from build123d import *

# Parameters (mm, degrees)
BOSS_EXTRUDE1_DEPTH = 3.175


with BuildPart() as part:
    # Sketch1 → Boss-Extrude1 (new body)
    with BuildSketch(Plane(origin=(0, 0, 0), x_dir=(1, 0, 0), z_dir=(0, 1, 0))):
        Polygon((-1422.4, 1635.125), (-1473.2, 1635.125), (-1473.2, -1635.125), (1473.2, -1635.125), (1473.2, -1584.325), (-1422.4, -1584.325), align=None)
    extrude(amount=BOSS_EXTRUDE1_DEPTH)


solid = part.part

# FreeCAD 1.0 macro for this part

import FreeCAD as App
import Part
import Sketcher
Q = App.Units.Quantity

doc = App.newDocument("Part")
params = doc.addObject("Spreadsheet::Sheet", "Params")
for row, (alias, value) in enumerate([
    ("sketch1_width", "2 in"),
    ("sketch1_width2", "116 in"),
    ("sketch1_height", "128.75 in"),
    ("pad1_length", "0.125 in"),
], start=1):
    params.set(f"A{row}", alias)
    params.set(f"B{row}", "=" + value)
    params.setAlias(f"B{row}", alias)

body = doc.addObject("PartDesign::Body", "Body")

# Sketch on XZ plane
sketch1 = body.newObject("Sketcher::SketchObject", "Sketch")
sketch1.AttachmentSupport = (doc.getObject("XZ_Plane"), [""])
sketch1.MapMode = "FlatFace"
sketch1.addGeometry([
    Part.LineSegment(App.Vector(-1422, -1635, 0), App.Vector(-1473, -1635, 0)),  # 0
    Part.LineSegment(App.Vector(-1473, -1635, 0), App.Vector(-1473, 1635, 0)),  # 1
    Part.LineSegment(App.Vector(-1473, 1635, 0), App.Vector(1473, 1635, 0)),  # 2
    Part.LineSegment(App.Vector(1473, 1635, 0), App.Vector(1473, 1584, 0)),  # 3
    Part.LineSegment(App.Vector(1473, 1584, 0), App.Vector(-1422, 1584, 0)),  # 4
    Part.LineSegment(App.Vector(-1422, 1584, 0), App.Vector(-1422, -1635, 0)),  # 5
], False)
sketch1.addConstraint([
    Sketcher.Constraint("Coincident", 0, 2, 1, 1),
    Sketcher.Constraint("Coincident", 1, 2, 2, 1),
    Sketcher.Constraint("Coincident", 2, 2, 3, 1),
    Sketcher.Constraint("Coincident", 3, 2, 4, 1),
    Sketcher.Constraint("Coincident", 4, 2, 5, 1),
    Sketcher.Constraint("Coincident", 5, 2, 0, 1),
    Sketcher.Constraint("Horizontal", 0),
    Sketcher.Constraint("Vertical", 1),
    Sketcher.Constraint("Horizontal", 2),
    Sketcher.Constraint("Vertical", 3),
    Sketcher.Constraint("Horizontal", 4),
    Sketcher.Constraint("Vertical", 5),
    Sketcher.Constraint("Symmetric", 0, 2, 2, 2, -1, 1),
    Sketcher.Constraint("Equal", 0, 3),
    Sketcher.Constraint("DistanceX", 0, 2, 0, 1, Q("2 in")),
    Sketcher.Constraint("DistanceX", 2, 1, 2, 2, Q("116 in")),
    Sketcher.Constraint("DistanceY", 1, 1, 1, 2, Q("128.75 in")),
])
sketch1.setExpression("Constraints[14]", "Params.sketch1_width")
sketch1.setExpression("Constraints[15]", "Params.sketch1_width2")
sketch1.setExpression("Constraints[16]", "Params.sketch1_height")
pad1 = body.newObject("PartDesign::Pad", "Pad")
pad1.Profile = sketch1
pad1.setExpression("Length", "Params.pad1_length")
pad1.Reversed = True

doc.recompute()
